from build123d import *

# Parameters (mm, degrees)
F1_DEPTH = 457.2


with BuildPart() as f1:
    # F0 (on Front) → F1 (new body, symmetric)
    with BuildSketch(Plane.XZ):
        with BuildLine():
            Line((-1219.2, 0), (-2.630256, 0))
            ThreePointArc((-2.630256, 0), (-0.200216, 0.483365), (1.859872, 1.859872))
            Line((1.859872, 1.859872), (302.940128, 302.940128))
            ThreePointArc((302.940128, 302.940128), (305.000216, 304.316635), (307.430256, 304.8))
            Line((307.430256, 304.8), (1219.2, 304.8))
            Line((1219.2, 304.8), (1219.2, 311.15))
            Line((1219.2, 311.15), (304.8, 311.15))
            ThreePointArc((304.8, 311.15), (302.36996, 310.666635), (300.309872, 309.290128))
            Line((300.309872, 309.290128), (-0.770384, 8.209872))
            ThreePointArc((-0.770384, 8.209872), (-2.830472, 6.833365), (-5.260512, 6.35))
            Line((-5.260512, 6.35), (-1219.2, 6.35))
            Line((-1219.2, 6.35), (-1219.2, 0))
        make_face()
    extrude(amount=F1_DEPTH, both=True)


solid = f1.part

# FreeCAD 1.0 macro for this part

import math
import FreeCAD as App
import Part
import Sketcher
from FreeCAD import Vector
Q = App.Units.Quantity

doc = App.newDocument("Part")
body = doc.addObject("PartDesign::Body", "Body")

# Sketch on XZ plane
sketch1 = body.newObject("Sketcher::SketchObject", "Sketch")
sketch1.AttachmentSupport = (doc.getObject("XZ_Plane"), [""])
sketch1.MapMode = "FlatFace"
sketch1.addGeometry(Part.LineSegment(Vector(-1219.2, 0, 0), Vector(-2.6, 0, 0)), False)
sketch1.addGeometry(Part.ArcOfCircle(Part.Circle(Vector(-2.6, 6.3, 0), Vector(0, 0, 1), 6.3), math.radians(-90), math.radians(-45)), False)
sketch1.addGeometry(Part.LineSegment(Vector(1.9, 1.9, 0), Vector(302.9, 302.9, 0)), False)
sketch1.addGeometry(Part.ArcOfCircle(Part.Circle(Vector(307.4, 298.5, 0), Vector(0, 0, 1), 6.3), math.radians(90), math.radians(135)), False)
sketch1.addGeometry(Part.LineSegment(Vector(307.4, 304.8, 0), Vector(1219.2, 304.8, 0)), False)
sketch1.addGeometry(Part.LineSegment(Vector(1219.2, 304.8, 0), Vector(1219.2, 311.1, 0)), False)
sketch1.addGeometry(Part.LineSegment(Vector(1219.2, 311.1, 0), Vector(304.8, 311.1, 0)), False)
sketch1.addGeometry(Part.ArcOfCircle(Part.Circle(Vector(304.8, 304.8, 0), Vector(0, 0, 1), 6.3), math.radians(90), math.radians(135)), False)
sketch1.addGeometry(Part.LineSegment(Vector(300.3, 309.3, 0), Vector(-0.8, 8.2, 0)), False)
sketch1.addGeometry(Part.ArcOfCircle(Part.Circle(Vector(-5.3, 12.7, 0), Vector(0, 0, 1), 6.3), math.radians(-90), math.radians(-45)), False)
sketch1.addGeometry(Part.LineSegment(Vector(-5.3, 6.3, 0), Vector(-1219.2, 6.3, 0)), False)
sketch1.addGeometry(Part.LineSegment(Vector(-1219.2, 6.3, 0), Vector(-1219.2, 0, 0)), False)
sketch1.addConstraint(Sketcher.Constraint("Tangent", 0, 2, 1, 1))
sketch1.addConstraint(Sketcher.Constraint("Tangent", 1, 2, 2, 1))
sketch1.addConstraint(Sketcher.Constraint("Tangent", 2, 2, 3, 2))
sketch1.addConstraint(Sketcher.Constraint("Tangent", 3, 1, 4, 1))
sketch1.addConstraint(Sketcher.Constraint("Coincident", 4, 2, 5, 1))
sketch1.addConstraint(Sketcher.Constraint("Coincident", 5, 2, 6, 1))
sketch1.addConstraint(Sketcher.Constraint("Tangent", 6, 2, 7, 1))
sketch1.addConstraint(Sketcher.Constraint("Tangent", 7, 2, 8, 1))
sketch1.addConstraint(Sketcher.Constraint("Tangent", 8, 2, 9, 2))
sketch1.addConstraint(Sketcher.Constraint("Tangent", 9, 1, 10, 1))
sketch1.addConstraint(Sketcher.Constraint("Coincident", 10, 2, 11, 1))
sketch1.addConstraint(Sketcher.Constraint("Coincident", 11, 2, 0, 1))
sketch1.addConstraint(Sketcher.Constraint("Horizontal", 0))
sketch1.addConstraint(Sketcher.Constraint("Horizontal", 4))
sketch1.addConstraint(Sketcher.Constraint("Vertical", 5))
sketch1.addConstraint(Sketcher.Constraint("Horizontal", 6))
sketch1.addConstraint(Sketcher.Constraint("Horizontal", 10))
sketch1.addConstraint(Sketcher.Constraint("Vertical", 11))
sketch1.addConstraint(Sketcher.Constraint("Equal", 1, 3))
sketch1.addConstraint(Sketcher.Constraint("Equal", 3, 7))
sketch1.addConstraint(Sketcher.Constraint("Equal", 7, 9))
sketch1.addConstraint(Sketcher.Constraint("PointOnObject", 0, 2, -1))
sketch1.addConstraint(Sketcher.Constraint("Parallel", 2, 8))
sketch1.addConstraint(Sketcher.Constraint("Horizontal", 7, 3, 3, 1))
sketch1.addConstraint(Sketcher.Constraint("Horizontal", 1, 3, 9, 1))
sketch1.addConstraint(Sketcher.Constraint("DistanceX", 6, 2, 6, 1, Q("36 in")))
sketch1.addConstraint(Sketcher.Constraint("Radius", 1, Q("0.25 in")))
sketch1.addConstraint(Sketcher.Constraint("DistanceX", -1, 1, 7, 3, Q("12 in")))
sketch1.addConstraint(Sketcher.Constraint("DistanceY", -1, 1, 7, 3, Q("12 in")))
sketch1.addConstraint(Sketcher.Constraint("DistanceX", 10, 2, -1, 1, Q("48 in")))
sketch1.addConstraint(Sketcher.Constraint("Angle", 2, Q("45 deg")))
sketch1.addConstraint(Sketcher.Constraint("DistanceX", 0, 1, 0, 2, 1216.569744))
pad1 = body.newObject("PartDesign::Pad", "Pad")
pad1.Profile = sketch1
pad1.Length = Q("36 in")
pad1.Midplane = True

doc.recompute()
